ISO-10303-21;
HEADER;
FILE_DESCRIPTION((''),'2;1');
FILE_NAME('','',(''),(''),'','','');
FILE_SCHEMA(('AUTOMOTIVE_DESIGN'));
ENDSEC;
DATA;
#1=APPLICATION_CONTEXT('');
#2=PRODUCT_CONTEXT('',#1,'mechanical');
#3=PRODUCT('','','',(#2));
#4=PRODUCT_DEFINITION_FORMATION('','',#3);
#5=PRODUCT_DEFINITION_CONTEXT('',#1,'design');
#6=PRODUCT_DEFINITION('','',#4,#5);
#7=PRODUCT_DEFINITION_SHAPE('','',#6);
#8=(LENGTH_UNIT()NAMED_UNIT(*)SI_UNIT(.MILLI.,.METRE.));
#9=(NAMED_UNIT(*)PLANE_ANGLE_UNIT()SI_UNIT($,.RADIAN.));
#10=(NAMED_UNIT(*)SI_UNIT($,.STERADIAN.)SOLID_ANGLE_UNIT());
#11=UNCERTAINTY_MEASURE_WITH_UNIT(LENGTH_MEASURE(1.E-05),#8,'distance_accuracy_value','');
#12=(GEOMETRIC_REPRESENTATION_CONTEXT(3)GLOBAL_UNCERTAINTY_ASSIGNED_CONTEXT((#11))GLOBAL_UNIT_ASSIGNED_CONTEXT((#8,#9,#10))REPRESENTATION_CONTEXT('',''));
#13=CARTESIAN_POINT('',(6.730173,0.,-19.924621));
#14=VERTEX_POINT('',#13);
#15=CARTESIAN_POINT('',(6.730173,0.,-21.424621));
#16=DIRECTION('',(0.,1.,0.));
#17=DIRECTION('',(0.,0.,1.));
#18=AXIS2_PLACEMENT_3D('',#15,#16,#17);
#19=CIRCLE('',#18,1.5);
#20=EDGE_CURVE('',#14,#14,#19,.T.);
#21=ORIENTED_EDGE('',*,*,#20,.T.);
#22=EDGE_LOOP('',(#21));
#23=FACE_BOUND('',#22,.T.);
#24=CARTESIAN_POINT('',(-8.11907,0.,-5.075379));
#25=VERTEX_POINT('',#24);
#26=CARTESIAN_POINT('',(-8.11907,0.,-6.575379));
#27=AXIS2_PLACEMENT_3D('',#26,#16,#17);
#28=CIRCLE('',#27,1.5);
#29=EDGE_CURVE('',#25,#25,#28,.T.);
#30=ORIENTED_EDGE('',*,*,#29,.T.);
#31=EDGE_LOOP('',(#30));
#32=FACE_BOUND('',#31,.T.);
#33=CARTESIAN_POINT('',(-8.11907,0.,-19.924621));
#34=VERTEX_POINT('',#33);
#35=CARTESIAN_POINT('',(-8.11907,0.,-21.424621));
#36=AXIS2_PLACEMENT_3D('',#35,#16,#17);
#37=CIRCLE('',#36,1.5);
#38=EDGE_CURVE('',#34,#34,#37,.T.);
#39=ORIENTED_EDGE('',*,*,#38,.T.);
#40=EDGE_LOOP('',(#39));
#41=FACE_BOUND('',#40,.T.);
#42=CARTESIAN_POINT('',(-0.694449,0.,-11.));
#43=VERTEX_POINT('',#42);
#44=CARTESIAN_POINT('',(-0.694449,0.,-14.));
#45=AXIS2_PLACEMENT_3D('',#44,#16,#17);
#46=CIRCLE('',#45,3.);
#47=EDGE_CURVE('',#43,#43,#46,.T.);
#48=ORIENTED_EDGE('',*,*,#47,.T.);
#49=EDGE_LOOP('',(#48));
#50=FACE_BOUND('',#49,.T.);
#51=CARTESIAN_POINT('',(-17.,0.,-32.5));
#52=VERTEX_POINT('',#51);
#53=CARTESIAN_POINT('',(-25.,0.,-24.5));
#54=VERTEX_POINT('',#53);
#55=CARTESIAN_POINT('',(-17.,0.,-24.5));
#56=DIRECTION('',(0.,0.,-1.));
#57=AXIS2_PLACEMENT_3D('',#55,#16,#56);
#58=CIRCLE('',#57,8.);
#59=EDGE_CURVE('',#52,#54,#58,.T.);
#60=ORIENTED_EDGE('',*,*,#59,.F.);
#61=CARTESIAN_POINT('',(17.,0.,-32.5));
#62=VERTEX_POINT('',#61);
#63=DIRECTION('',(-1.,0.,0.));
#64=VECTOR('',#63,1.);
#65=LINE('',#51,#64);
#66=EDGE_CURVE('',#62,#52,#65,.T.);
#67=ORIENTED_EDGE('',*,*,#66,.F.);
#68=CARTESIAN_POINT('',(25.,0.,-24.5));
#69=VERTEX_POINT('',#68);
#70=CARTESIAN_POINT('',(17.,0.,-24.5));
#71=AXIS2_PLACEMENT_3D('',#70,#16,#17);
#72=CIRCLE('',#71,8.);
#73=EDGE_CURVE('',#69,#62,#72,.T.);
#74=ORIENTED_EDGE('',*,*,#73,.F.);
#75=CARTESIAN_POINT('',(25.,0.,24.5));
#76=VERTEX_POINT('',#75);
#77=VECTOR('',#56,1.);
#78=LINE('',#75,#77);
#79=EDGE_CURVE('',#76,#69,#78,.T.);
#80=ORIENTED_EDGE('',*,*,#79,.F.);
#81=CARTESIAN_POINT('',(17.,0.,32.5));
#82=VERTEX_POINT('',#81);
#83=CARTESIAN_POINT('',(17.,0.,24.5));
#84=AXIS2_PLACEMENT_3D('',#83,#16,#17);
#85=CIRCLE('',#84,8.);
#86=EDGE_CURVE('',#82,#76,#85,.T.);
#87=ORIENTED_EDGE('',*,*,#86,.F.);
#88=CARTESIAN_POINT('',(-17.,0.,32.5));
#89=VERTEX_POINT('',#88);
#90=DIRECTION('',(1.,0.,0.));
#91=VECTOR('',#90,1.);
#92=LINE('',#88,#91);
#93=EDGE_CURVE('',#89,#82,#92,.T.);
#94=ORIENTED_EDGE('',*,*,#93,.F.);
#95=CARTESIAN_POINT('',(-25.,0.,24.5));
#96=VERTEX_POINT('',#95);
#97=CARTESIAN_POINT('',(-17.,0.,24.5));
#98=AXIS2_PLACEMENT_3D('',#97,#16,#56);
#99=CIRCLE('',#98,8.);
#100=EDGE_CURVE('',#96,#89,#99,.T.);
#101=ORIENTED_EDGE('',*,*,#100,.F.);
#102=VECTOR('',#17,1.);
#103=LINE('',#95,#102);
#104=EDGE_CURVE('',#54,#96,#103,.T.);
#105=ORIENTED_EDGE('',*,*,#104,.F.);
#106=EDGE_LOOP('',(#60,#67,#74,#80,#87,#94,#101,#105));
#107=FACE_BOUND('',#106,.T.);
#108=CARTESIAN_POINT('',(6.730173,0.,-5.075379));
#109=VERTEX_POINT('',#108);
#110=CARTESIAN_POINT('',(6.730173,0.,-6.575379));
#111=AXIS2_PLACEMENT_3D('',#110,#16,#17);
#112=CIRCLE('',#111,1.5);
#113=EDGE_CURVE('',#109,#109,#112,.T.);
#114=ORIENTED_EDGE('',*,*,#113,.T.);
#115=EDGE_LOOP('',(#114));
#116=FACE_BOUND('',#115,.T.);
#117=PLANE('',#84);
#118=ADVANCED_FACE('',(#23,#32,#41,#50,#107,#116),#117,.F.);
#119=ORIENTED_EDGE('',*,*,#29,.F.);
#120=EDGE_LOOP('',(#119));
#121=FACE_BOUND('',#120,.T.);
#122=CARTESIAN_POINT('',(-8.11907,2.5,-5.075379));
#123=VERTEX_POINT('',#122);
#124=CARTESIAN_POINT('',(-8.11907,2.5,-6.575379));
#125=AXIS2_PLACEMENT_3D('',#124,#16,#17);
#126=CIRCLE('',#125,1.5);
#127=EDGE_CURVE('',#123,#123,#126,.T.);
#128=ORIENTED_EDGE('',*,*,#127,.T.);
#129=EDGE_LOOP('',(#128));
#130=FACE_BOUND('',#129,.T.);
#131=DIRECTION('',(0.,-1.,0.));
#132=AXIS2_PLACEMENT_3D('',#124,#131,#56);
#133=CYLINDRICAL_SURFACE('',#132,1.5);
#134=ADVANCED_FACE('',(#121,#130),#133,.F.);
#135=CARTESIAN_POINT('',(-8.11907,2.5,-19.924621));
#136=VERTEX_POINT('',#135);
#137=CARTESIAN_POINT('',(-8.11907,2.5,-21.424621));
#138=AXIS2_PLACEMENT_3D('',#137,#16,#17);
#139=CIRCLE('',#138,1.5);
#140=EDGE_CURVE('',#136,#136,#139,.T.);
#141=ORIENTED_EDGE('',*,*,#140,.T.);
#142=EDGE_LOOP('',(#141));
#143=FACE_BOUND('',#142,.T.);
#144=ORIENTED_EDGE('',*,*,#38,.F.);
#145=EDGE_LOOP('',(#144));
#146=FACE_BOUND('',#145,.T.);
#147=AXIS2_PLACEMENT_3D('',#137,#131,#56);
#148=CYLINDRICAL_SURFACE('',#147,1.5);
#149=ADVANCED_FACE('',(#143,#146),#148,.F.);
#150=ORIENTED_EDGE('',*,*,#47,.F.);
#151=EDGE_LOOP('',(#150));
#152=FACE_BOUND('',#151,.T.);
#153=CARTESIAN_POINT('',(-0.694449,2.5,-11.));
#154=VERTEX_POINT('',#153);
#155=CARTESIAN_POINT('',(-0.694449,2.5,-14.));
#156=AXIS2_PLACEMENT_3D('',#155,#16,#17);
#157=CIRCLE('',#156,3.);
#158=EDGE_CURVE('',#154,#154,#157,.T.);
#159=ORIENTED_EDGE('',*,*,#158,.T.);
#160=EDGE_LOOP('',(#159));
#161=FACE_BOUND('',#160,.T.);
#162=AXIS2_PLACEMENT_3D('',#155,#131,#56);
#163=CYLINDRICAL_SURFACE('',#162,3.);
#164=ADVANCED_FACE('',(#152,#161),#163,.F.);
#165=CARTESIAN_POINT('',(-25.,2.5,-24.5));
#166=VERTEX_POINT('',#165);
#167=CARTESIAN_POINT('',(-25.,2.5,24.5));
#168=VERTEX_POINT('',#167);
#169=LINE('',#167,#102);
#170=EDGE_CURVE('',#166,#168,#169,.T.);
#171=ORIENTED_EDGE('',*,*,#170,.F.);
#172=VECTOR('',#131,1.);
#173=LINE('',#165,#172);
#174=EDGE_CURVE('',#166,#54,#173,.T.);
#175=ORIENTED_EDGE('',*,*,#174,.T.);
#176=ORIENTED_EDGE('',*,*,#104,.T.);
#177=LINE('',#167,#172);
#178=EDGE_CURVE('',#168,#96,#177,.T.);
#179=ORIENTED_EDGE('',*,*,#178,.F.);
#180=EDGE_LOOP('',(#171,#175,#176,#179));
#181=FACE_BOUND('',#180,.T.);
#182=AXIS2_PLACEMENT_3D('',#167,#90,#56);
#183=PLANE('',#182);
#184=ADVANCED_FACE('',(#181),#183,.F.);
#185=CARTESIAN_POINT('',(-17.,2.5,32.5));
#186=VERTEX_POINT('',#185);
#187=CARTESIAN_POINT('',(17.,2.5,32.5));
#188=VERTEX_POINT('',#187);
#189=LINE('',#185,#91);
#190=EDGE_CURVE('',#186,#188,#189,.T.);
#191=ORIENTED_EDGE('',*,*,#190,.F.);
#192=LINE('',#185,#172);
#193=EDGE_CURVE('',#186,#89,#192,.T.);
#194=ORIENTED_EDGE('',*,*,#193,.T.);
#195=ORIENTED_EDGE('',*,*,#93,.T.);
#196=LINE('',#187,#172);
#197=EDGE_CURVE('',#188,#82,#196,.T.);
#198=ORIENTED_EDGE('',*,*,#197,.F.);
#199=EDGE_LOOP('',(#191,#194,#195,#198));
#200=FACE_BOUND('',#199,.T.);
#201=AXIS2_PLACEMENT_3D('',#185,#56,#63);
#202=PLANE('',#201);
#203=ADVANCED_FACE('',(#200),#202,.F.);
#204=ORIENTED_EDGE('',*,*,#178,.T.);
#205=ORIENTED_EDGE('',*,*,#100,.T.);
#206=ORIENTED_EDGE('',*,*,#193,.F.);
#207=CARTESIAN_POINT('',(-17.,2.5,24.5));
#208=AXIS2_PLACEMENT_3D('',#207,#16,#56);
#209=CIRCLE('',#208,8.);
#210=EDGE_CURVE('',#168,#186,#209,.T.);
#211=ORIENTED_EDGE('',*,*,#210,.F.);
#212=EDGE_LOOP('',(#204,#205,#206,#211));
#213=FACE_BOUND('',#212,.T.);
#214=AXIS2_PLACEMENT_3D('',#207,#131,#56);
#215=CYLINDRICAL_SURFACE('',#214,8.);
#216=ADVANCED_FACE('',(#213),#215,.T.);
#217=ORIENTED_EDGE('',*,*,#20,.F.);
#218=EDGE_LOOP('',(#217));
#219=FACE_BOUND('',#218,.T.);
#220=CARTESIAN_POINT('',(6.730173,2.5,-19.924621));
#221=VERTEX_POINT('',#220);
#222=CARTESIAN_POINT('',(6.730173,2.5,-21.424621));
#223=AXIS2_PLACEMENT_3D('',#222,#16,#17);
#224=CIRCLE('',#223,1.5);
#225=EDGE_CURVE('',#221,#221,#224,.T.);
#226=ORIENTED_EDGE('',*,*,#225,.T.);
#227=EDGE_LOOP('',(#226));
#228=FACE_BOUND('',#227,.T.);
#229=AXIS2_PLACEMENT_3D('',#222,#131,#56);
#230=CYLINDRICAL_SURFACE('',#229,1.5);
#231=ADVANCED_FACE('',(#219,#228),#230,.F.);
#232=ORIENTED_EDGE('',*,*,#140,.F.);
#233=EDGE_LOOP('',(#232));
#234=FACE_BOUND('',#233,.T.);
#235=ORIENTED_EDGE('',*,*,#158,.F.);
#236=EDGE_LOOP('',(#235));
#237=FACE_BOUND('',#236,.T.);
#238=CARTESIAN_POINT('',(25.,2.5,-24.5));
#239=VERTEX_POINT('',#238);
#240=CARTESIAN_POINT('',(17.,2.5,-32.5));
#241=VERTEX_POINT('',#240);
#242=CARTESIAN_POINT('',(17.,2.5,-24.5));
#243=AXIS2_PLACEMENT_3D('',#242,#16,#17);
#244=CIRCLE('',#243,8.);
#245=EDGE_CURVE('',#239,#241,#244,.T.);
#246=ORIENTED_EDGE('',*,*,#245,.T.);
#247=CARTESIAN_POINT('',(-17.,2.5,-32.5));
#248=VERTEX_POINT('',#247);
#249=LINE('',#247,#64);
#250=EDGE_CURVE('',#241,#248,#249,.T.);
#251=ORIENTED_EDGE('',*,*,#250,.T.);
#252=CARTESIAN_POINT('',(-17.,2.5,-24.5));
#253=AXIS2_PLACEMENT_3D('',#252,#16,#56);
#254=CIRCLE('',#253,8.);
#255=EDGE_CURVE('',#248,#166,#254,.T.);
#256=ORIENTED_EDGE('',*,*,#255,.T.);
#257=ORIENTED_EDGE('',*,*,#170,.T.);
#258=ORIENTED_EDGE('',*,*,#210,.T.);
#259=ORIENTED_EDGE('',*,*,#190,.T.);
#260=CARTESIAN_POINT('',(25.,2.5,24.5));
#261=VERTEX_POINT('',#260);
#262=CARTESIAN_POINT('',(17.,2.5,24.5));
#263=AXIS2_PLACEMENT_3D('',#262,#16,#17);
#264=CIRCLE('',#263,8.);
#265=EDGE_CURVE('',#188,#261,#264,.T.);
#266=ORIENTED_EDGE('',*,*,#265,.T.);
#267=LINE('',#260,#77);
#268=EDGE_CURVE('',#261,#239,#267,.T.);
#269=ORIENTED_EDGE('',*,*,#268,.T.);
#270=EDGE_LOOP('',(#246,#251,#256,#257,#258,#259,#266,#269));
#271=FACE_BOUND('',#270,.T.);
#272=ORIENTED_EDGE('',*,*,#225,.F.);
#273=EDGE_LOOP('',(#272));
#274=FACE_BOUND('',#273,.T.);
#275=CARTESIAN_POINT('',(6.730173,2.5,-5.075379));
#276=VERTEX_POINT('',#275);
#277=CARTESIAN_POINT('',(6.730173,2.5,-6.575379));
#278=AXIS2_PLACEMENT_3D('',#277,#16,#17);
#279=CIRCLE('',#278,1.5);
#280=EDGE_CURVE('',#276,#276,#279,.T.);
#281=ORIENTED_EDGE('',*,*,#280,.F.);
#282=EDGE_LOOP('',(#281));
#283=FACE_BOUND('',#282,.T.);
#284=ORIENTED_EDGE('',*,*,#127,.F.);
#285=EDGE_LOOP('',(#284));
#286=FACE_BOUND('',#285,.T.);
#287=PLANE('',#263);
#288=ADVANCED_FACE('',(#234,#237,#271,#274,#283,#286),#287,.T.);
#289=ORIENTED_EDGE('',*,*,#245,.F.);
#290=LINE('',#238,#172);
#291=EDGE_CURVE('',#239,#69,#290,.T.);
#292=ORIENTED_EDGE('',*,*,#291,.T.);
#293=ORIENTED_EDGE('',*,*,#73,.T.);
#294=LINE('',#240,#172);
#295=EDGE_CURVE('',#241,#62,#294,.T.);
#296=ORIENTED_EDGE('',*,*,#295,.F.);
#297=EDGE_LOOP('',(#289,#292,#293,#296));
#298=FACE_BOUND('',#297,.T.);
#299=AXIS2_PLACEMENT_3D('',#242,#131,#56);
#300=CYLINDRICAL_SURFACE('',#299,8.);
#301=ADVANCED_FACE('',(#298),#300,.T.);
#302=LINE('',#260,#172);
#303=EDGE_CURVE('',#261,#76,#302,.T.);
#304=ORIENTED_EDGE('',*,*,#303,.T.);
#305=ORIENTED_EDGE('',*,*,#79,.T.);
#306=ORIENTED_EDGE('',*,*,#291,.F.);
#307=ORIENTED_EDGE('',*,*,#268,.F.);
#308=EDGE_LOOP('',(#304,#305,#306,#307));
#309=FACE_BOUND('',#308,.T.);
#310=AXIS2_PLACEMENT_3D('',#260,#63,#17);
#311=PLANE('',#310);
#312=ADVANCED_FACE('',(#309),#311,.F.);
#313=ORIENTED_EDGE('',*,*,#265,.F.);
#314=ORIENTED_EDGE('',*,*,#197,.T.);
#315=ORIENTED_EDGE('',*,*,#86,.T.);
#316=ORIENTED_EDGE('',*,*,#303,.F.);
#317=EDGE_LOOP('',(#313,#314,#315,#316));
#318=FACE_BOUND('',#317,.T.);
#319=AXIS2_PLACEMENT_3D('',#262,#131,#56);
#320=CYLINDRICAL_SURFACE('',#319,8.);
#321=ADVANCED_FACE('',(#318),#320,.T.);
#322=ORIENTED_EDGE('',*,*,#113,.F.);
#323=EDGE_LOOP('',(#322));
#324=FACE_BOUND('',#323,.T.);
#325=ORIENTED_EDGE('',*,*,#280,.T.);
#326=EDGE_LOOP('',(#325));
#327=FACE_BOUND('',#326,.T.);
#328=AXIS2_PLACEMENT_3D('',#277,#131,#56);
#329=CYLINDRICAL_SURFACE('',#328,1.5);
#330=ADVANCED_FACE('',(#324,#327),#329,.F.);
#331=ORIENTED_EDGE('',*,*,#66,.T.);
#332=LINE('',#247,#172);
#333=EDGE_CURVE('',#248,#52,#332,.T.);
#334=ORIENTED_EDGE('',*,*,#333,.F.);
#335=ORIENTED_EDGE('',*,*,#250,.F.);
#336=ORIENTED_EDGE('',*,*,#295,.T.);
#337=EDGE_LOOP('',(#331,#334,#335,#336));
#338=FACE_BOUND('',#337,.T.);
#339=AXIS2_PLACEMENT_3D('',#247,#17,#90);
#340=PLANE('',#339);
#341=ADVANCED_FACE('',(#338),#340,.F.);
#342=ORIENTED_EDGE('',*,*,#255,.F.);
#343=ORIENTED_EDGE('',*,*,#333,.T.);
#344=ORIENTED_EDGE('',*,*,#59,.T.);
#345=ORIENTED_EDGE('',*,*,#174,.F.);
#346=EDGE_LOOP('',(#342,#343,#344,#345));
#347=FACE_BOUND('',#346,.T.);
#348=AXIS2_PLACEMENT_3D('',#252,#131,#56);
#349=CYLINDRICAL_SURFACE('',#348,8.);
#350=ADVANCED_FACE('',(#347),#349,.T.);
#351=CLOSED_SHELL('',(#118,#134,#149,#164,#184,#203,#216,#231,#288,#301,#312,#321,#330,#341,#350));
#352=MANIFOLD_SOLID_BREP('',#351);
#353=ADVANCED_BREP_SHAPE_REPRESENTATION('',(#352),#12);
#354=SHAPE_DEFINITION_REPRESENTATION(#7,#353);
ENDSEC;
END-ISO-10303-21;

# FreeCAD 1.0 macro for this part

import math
import FreeCAD as App
import Part
import Sketcher

V = App.Vector
Q = App.Units.Quantity

doc = App.newDocument("Part")
body = doc.addObject("PartDesign::Body", "Body")

# Sketch on XZ plane
sketch1 = body.newObject("Sketcher::SketchObject", "Sketch")
sketch1.AttachmentSupport = (doc.getObject("XZ_Plane"), [""])
sketch1.MapMode = "FlatFace"
sketch1.addGeometry([
    Part.LineSegment(V(-17, 32.5, 0), V(17, 32.5, 0)),  # 0
    Part.ArcOfCircle(Part.Circle(V(17, 24.5, 0), V(0, 0, 1), 8), math.radians(0), math.radians(90)),  # 1
    Part.LineSegment(V(25, 24.5, 0), V(25, -24.5, 0)),  # 2
    Part.ArcOfCircle(Part.Circle(V(17, -24.5, 0), V(0, 0, 1), 8), math.radians(-90), math.radians(0)),  # 3
    Part.LineSegment(V(17, -32.5, 0), V(-17, -32.5, 0)),  # 4
    Part.ArcOfCircle(Part.Circle(V(-17, -24.5, 0), V(0, 0, 1), 8), math.radians(-180), math.radians(-90)),  # 5
    Part.LineSegment(V(-25, -24.5, 0), V(-25, 24.5, 0)),  # 6
    Part.ArcOfCircle(Part.Circle(V(-17, 24.5, 0), V(0, 0, 1), 8), math.radians(90), math.radians(180)),  # 7
    Part.Circle(V(-8.1, -6.6, 0), V(0, 0, 1), 1.5),  # 8
    Part.Circle(V(6.7, -6.6, 0), V(0, 0, 1), 1.5),  # 9
    Part.Circle(V(-0.7, -14, 0), V(0, 0, 1), 3),  # 10
    Part.Circle(V(-8.1, -21.4, 0), V(0, 0, 1), 1.5),  # 11
    Part.Circle(V(6.7, -21.4, 0), V(0, 0, 1), 1.5),  # 12
], False)
sketch1.addConstraint([
    Sketcher.Constraint("Tangent", 0, 2, 1, 2),
    Sketcher.Constraint("Tangent", 1, 1, 2, 1),
    Sketcher.Constraint("Tangent", 2, 2, 3, 2),
    Sketcher.Constraint("Tangent", 3, 1, 4, 1),
    Sketcher.Constraint("Tangent", 4, 2, 5, 2),
    Sketcher.Constraint("Tangent", 5, 1, 6, 1),
    Sketcher.Constraint("Tangent", 6, 2, 7, 2),
    Sketcher.Constraint("Tangent", 7, 1, 0, 1),
    Sketcher.Constraint("Horizontal", 0),
    Sketcher.Constraint("Vertical", 2),
    Sketcher.Constraint("Horizontal", 4),
    Sketcher.Constraint("Vertical", 6),
    Sketcher.Constraint("Equal", 1, 3),
    Sketcher.Constraint("Equal", 3, 5),
    Sketcher.Constraint("Equal", 5, 7),
    Sketcher.Constraint("Equal", 8, 9),
    Sketcher.Constraint("Equal", 9, 11),
    Sketcher.Constraint("Equal", 11, 12),
    Sketcher.Constraint("Symmetric", 1, 3, 5, 3, -1, 1),
    Sketcher.Constraint("Horizontal", 8, 3, 9, 3),
    Sketcher.Constraint("Horizontal", 11, 3, 12, 3),
    Sketcher.Constraint("Vertical", 8, 3, 11, 3),
    Sketcher.Constraint("Vertical", 9, 3, 12, 3),
    Sketcher.Constraint("Diameter", 8, Q("3 mm")),
    Sketcher.Constraint("Diameter", 10, Q("6 mm")),
    Sketcher.Constraint("Radius", 1, Q("8 mm")),
    Sketcher.Constraint("DistanceX", 0, 1, 0, 2, Q("34 mm")),
    Sketcher.Constraint("DistanceY", 2, 2, 2, 1, Q("49 mm")),
    Sketcher.Constraint("DistanceY", 10, 3, -1, 1, Q("14 mm")),
    Sketcher.Constraint("DistanceX", 8, 3, -1, 1, Q("8.11907 mm")),
    Sketcher.Constraint("DistanceY", 8, 3, -1, 1, Q("6.575379 mm")),
    Sketcher.Constraint("DistanceX", 10, 3, -1, 1, Q("0.694449 mm")),
    Sketcher.Constraint("DistanceY", 11, 3, -1, 1, Q("21.424621 mm")),
    Sketcher.Constraint("DistanceX", 10, 3, 9, 3, Q("7.424621 mm")),
])
pad1 = body.newObject("PartDesign::Pad", "Pad")
pad1.Profile = sketch1
pad1.Length = 2.5
pad1.Reversed = True

doc.recompute()
